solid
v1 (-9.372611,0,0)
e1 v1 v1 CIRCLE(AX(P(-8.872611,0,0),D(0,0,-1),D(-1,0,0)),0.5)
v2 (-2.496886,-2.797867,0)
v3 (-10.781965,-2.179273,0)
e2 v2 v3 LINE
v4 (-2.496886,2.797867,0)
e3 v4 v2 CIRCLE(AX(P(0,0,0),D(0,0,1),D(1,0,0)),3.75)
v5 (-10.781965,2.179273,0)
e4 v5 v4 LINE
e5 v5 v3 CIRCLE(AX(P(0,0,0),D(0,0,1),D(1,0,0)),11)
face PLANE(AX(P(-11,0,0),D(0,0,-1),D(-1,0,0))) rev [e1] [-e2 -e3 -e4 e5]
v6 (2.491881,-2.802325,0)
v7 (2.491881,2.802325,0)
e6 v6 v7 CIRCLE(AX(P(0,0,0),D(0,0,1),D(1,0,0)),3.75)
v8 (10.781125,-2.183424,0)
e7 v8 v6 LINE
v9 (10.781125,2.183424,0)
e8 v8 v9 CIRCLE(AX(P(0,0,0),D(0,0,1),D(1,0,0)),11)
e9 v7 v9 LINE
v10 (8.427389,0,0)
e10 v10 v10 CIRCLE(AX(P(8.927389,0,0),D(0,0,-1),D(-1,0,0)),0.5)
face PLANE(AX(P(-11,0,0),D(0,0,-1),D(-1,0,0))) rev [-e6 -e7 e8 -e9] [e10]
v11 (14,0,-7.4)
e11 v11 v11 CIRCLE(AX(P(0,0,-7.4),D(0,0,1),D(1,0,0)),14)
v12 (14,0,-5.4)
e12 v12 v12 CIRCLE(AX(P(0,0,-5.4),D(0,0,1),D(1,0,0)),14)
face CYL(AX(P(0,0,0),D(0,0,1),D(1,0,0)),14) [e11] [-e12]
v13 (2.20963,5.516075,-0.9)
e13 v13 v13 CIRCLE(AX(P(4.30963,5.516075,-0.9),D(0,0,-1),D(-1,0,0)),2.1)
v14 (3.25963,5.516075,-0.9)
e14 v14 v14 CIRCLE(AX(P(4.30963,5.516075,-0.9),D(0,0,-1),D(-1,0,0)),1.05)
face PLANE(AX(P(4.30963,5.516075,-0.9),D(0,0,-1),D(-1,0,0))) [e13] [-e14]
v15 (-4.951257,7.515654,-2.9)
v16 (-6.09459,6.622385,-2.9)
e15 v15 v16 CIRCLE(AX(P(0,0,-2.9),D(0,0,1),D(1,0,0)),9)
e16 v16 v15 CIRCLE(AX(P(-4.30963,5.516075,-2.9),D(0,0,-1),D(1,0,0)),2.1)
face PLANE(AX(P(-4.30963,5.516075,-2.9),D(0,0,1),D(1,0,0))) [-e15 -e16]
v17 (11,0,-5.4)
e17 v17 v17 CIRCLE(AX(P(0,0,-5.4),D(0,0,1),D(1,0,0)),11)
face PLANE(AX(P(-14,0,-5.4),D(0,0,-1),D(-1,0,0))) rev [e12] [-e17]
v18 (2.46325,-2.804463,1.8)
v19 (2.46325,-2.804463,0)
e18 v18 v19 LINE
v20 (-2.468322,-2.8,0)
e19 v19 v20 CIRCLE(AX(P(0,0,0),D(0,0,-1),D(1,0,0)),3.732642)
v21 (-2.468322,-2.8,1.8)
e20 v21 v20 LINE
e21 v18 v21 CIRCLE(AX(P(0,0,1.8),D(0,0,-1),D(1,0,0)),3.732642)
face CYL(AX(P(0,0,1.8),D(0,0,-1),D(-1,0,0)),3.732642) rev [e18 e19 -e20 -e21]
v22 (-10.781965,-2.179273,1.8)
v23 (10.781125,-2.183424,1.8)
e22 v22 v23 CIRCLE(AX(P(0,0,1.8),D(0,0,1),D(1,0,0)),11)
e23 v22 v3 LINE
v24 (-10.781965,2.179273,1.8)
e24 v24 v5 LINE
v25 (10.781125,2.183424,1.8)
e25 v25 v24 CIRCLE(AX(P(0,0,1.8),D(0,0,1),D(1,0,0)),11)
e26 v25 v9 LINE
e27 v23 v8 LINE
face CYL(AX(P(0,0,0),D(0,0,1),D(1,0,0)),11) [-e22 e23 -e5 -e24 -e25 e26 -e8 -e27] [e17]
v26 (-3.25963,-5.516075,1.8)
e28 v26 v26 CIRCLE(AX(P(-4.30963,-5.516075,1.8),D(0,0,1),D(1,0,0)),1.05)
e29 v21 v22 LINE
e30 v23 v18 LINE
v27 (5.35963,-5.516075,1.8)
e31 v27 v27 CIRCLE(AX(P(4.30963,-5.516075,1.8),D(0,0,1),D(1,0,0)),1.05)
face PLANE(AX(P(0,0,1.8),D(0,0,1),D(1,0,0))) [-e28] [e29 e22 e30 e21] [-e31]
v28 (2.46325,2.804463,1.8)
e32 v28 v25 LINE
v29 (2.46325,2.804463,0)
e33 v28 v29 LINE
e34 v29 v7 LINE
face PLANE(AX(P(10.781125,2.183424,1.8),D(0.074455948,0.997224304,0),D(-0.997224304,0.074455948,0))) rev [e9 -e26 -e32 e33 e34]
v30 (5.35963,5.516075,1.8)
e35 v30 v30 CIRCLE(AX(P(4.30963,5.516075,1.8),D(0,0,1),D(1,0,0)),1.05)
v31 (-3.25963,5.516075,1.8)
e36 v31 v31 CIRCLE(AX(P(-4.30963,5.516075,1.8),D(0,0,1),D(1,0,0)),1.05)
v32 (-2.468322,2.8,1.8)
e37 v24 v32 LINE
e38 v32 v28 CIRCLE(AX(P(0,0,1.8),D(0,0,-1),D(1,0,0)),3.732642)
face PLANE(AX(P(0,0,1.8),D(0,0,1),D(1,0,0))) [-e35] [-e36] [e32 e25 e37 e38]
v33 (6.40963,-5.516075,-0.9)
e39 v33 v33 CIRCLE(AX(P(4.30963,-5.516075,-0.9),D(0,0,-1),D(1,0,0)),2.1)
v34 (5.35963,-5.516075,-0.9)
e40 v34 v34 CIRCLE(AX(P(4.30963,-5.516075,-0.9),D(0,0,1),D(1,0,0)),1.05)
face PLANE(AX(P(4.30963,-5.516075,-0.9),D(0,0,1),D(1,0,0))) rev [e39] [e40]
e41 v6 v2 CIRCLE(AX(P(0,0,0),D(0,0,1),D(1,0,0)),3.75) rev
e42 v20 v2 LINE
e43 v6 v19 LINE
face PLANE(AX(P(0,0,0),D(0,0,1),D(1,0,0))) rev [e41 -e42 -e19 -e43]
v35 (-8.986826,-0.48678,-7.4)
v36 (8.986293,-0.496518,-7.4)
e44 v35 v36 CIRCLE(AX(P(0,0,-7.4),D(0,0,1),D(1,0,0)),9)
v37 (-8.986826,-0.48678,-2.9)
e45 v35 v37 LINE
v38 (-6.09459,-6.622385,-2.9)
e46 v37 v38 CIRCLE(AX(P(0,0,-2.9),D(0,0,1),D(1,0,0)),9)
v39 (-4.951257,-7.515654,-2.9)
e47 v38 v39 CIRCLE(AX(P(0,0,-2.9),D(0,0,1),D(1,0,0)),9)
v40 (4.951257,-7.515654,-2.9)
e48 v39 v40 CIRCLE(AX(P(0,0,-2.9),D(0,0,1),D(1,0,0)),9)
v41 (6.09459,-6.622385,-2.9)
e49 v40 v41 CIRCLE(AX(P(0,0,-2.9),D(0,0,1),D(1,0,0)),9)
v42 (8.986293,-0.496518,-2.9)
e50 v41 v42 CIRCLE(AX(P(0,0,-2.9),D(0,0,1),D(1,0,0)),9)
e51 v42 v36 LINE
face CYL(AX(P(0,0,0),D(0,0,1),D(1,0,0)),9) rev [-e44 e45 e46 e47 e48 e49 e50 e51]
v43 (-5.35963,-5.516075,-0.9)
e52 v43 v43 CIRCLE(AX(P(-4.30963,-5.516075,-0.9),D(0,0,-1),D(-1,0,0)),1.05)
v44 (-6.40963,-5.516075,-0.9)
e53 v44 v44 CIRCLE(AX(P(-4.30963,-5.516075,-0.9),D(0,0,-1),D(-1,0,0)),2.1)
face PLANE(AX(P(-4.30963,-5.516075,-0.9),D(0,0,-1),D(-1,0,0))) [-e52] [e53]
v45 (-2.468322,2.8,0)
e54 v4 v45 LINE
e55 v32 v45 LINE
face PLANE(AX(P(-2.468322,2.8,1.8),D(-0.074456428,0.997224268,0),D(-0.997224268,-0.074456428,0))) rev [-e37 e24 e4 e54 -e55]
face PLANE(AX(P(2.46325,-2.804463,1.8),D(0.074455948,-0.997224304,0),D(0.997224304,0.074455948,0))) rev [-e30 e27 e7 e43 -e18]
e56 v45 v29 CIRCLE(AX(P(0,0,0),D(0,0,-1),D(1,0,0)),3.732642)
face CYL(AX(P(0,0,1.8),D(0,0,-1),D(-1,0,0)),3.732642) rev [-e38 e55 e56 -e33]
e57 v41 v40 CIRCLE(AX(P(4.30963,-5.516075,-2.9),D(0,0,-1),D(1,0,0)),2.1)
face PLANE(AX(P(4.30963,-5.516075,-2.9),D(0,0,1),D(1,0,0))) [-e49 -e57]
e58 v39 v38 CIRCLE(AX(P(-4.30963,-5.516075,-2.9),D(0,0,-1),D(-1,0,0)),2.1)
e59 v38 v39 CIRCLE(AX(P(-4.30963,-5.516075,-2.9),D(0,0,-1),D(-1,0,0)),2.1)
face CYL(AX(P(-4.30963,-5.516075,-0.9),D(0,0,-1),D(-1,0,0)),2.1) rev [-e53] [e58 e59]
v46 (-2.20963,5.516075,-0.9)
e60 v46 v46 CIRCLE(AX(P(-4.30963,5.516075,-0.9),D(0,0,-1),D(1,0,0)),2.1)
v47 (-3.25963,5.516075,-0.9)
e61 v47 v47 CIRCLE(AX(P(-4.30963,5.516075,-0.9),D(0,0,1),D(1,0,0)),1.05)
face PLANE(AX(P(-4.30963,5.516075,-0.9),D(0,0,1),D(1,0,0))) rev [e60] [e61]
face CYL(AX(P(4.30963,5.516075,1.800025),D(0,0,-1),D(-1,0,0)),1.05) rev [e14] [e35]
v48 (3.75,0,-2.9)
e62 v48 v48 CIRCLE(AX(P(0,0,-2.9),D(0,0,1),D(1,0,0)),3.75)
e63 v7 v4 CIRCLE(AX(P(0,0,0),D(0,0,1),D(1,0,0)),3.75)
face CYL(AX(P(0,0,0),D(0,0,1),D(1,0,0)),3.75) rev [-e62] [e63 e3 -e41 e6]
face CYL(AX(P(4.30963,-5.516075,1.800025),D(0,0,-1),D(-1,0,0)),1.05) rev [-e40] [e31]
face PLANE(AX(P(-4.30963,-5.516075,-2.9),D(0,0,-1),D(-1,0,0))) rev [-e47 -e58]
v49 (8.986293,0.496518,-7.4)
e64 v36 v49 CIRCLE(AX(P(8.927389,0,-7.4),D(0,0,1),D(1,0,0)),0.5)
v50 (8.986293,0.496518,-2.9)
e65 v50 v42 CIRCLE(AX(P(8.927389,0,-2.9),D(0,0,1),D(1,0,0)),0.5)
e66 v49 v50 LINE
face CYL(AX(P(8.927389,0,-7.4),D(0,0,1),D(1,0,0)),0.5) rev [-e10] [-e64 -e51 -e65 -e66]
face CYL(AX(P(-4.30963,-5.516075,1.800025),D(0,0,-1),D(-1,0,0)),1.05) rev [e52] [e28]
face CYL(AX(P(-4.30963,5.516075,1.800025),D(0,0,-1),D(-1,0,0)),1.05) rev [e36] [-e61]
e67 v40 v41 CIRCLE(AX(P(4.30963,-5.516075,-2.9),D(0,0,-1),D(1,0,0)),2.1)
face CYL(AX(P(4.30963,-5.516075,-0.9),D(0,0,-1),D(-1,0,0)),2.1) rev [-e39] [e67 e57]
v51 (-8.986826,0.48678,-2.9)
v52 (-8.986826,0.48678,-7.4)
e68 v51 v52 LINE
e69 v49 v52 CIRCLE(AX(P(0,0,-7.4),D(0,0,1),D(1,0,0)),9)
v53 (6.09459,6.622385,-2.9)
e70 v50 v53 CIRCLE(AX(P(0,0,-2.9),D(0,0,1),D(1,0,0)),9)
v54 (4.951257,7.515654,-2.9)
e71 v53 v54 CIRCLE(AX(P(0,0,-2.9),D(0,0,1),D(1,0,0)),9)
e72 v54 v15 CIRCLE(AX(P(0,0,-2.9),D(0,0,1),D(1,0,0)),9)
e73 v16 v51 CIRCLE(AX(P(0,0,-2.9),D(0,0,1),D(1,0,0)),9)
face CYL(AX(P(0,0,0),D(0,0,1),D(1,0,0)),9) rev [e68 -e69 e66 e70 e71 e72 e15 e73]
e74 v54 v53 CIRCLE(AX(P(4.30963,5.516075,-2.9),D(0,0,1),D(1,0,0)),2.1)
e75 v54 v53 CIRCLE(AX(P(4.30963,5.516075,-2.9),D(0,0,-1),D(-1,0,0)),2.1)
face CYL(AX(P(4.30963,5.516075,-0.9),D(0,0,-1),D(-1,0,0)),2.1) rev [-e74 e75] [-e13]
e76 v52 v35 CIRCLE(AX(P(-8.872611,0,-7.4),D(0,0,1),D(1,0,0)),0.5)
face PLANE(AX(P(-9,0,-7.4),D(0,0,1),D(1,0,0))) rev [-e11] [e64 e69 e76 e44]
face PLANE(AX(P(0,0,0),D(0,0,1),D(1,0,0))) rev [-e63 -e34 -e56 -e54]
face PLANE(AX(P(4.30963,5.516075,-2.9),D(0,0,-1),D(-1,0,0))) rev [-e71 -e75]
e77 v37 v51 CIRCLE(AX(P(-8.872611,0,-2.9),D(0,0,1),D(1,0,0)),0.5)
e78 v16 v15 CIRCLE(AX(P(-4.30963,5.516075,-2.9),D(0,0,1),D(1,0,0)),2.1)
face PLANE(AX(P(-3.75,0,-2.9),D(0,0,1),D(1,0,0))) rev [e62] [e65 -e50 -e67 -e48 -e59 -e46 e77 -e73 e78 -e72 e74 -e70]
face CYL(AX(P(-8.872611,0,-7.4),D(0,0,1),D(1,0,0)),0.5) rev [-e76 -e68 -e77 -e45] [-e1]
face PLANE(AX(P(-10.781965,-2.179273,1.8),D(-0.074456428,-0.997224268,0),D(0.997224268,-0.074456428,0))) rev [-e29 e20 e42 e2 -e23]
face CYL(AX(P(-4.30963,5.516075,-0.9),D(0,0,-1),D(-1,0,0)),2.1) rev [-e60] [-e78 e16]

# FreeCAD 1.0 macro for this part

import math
import FreeCAD as App
import Part
import Sketcher
Q = App.Units.Quantity


def add_polygon(sketch, points):
    """Adds a closed chain of lines whose ends are joined by coincident constraints."""
    first, n = sketch.GeometryCount, len(points)
    for a, b in zip(points, points[1:] + points[:1]):
        sketch.addGeometry(Part.LineSegment(App.Vector(*a, 0), App.Vector(*b, 0)), False)
    for i in range(n):
        sketch.addConstraint(Sketcher.Constraint("Coincident", first + i, 2, first + (i + 1) % n, 1))

doc = App.newDocument("Part")
body = doc.addObject("PartDesign::Body", "Body")

# Sketch on XZ plane
sketch1 = doc.addObject("Sketcher::SketchObject", "Sketch")
body.addObject(sketch1)
sketch1.AttachmentSupport = (doc.XZ_Plane, [""])
sketch1.MapMode = "FlatFace"
add_polygon(sketch1, [(-11, 0), (-3.8, 0), (-3.8, -2.9), (-9, -2.9), (-9, -7.4), (-14, -7.4), (-14, -5.4), (-11, -5.4)])  # lines 0-7
sketch1.addConstraint([
    Sketcher.Constraint("Horizontal", 0),
    Sketcher.Constraint("Vertical", 1),
    Sketcher.Constraint("Horizontal", 2),
    Sketcher.Constraint("Vertical", 3),
    Sketcher.Constraint("Horizontal", 4),
    Sketcher.Constraint("Vertical", 5),
    Sketcher.Constraint("Horizontal", 6),
    Sketcher.Constraint("Vertical", 7),
    Sketcher.Constraint("PointOnObject", 0, 2, -1),
    Sketcher.Constraint("DistanceX", 4, 2, 4, 1, 5.0),
    Sketcher.Constraint("DistanceX", 6, 1, 6, 2, 3.0),
    Sketcher.Constraint("DistanceY", 5, 1, 5, 2, 2.0),
    Sketcher.Constraint("DistanceY", 1, 2, 1, 1, 2.9),
    Sketcher.Constraint("DistanceY", 3, 2, 3, 1, 4.5),
    Sketcher.Constraint("DistanceX", 2, 2, -1, 1, 9.0),
    Sketcher.Constraint("DistanceX", 0, 1, 0, 2, 7.25),
])
revolution = doc.addObject("PartDesign::Revolution", "Revolution")
body.addObject(revolution)
revolution.Profile = sketch1
revolution.ReferenceAxis = (sketch1, ["V_Axis"])
revolution.Angle = 360

# Sketch on XY plane
sketch2 = doc.addObject("Sketcher::SketchObject", "Sketch001")
body.addObject(sketch2)
sketch2.AttachmentSupport = (doc.XY_Plane, [""])
sketch2.MapMode = "FlatFace"
sketch2.AttachmentOffset = App.Placement(App.Vector(0, 0, 1.8), App.Rotation())
sketch2.addGeometry([
    Part.Circle(App.Vector(-8.9, 0, 0), App.Vector(0, 0, 1), 0.5),  # 0
    Part.Circle(App.Vector(8.9, 0, 0), App.Vector(0, 0, 1), 0.5),  # 1
    Part.LineSegment(App.Vector(-10.8, 2.2, 0), App.Vector(-2.5, 2.8, 0)),  # 2
    Part.ArcOfCircle(Part.Circle(App.Vector(0, 0, 0), App.Vector(0, 0, 1), 3.7), math.radians(49), math.radians(131)),  # 3
    Part.LineSegment(App.Vector(2.5, 2.8, 0), App.Vector(10.8, 2.2, 0)),  # 4
    Part.ArcOfCircle(Part.Circle(App.Vector(0, 0, 0), App.Vector(0, 0, 1), 11), math.radians(11), math.radians(169)),  # 5
    Part.LineSegment(App.Vector(-2.5, -2.8, 0), App.Vector(-10.8, -2.2, 0)),  # 6
    Part.ArcOfCircle(Part.Circle(App.Vector(0, 0, 0), App.Vector(0, 0, 1), 11), math.radians(-169), math.radians(-11)),  # 7
    Part.LineSegment(App.Vector(10.8, -2.2, 0), App.Vector(2.5, -2.8, 0)),  # 8
    Part.ArcOfCircle(Part.Circle(App.Vector(0, 0, 0), App.Vector(0, 0, 1), 3.7), math.radians(-131), math.radians(-49)),  # 9
], False)
sketch2.addConstraint([
    Sketcher.Constraint("Coincident", 2, 2, 3, 2),
    Sketcher.Constraint("Coincident", 3, 1, 4, 1),
    Sketcher.Constraint("Coincident", 4, 2, 5, 1),
    Sketcher.Constraint("Coincident", 5, 2, 2, 1),
    Sketcher.Constraint("Coincident", 6, 2, 7, 1),
    Sketcher.Constraint("Coincident", 7, 2, 8, 1),
    Sketcher.Constraint("Coincident", 8, 2, 9, 2),
    Sketcher.Constraint("Coincident", 9, 1, 6, 1),
    Sketcher.Constraint("Coincident", 3, 3, -1, 1),
    Sketcher.Constraint("Coincident", 5, 3, -1, 1),
    Sketcher.Constraint("Coincident", 7, 3, -1, 1),
    Sketcher.Constraint("Coincident", 9, 3, -1, 1),
    Sketcher.Constraint("Equal", 0, 1),
    Sketcher.Constraint("Equal", 5, 7),
    Sketcher.Constraint("Equal", 3, 9),
    Sketcher.Constraint("PointOnObject", 0, 3, -1),
    Sketcher.Constraint("PointOnObject", 1, 3, -1),
    Sketcher.Constraint("Parallel", 4, 6),
    Sketcher.Constraint("Parallel", 2, 8),
    Sketcher.Constraint("Vertical", 5, 2, 6, 2),
    Sketcher.Constraint("Vertical", 4, 2, 7, 2),
    Sketcher.Constraint("Vertical", 3, 1, 8, 2),
    Sketcher.Constraint("Diameter", 0, 1.0),
    Sketcher.Constraint("Radius", 5, 11.0),
    Sketcher.Constraint("DistanceY", -1, 1, 2, 2, 2.8),
    Sketcher.Constraint("Angle", 2, Q("4.269991 deg")),
    Sketcher.Constraint("DistanceX", 0, 3, 1, 3, 17.8),
    Sketcher.Constraint("Radius", 3, 3.732642),
    Sketcher.Constraint("DistanceX", 0, 3, -1, 1, 8.872611),
    Sketcher.Constraint("DistanceX", -1, 1, 3, 1, 2.46325),
])
pad1 = doc.addObject("PartDesign::Pad", "Pad")
body.addObject(pad1)
pad1.Profile = sketch2
pad1.Length = 1.8
pad1.Reversed = True

# Sketch on XY plane
sketch3 = doc.addObject("Sketcher::SketchObject", "Sketch002")
body.addObject(sketch3)
sketch3.AttachmentSupport = (doc.XY_Plane, [""])
sketch3.MapMode = "FlatFace"
sketch3.AttachmentOffset = App.Placement(App.Vector(0, 0, 1.8), App.Rotation())
sketch3.addGeometry([
    Part.Circle(App.Vector(-8.9, 0, 0), App.Vector(0, 0, 1), 0.5),
    Part.Circle(App.Vector(8.9, 0, 0), App.Vector(0, 0, 1), 0.5),
], False)
sketch3.addConstraint([
    Sketcher.Constraint("Equal", 0, 1),
    Sketcher.Constraint("PointOnObject", 0, 3, -1),
    Sketcher.Constraint("PointOnObject", 1, 3, -1),
    Sketcher.Constraint("Diameter", 0, 1.0),
    Sketcher.Constraint("DistanceX", 0, 3, 1, 3, 17.8),
    Sketcher.Constraint("DistanceX", 0, 3, -1, 1, 8.872611),
])
pocket1 = doc.addObject("PartDesign::Pocket", "Pocket")
body.addObject(pocket1)
pocket1.Profile = sketch3
pocket1.Type = "ThroughAll"

# Sketch on XY plane
sketch4 = doc.addObject("Sketcher::SketchObject", "Sketch003")
body.addObject(sketch4)
sketch4.AttachmentSupport = (doc.XY_Plane, [""])
sketch4.MapMode = "FlatFace"
sketch4.AttachmentOffset = App.Placement(App.Vector(0, 0, -2.9), App.Rotation())
sketch4.addGeometry([
    Part.Circle(App.Vector(4.3, 5.5, 0), App.Vector(0, 0, 1), 2.1),
    Part.Circle(App.Vector(-4.3, 5.5, 0), App.Vector(0, 0, 1), 2.1),
    Part.Circle(App.Vector(4.3, -5.5, 0), App.Vector(0, 0, 1), 2.1),
    Part.Circle(App.Vector(-4.3, -5.5, 0), App.Vector(0, 0, 1), 2.1),
], False)
sketch4.addConstraint([
    Sketcher.Constraint("Equal", 0, 1),
    Sketcher.Constraint("Equal", 1, 2),
    Sketcher.Constraint("Equal", 2, 3),
    Sketcher.Constraint("Symmetric", 1, 3, 2, 3, -1, 1),
    Sketcher.Constraint("Symmetric", 0, 3, 3, 3, -1, 1),
    Sketcher.Constraint("Symmetric", 0, 3, 1, 3, -2),
    Sketcher.Constraint("Diameter", 0, 4.2),
    Sketcher.Constraint("DistanceX", -1, 1, 0, 3, 4.30963),
    Sketcher.Constraint("DistanceY", 2, 3, 0, 3, 11.032151),
])
pocket2 = doc.addObject("PartDesign::Pocket", "Pocket001")
body.addObject(pocket2)
pocket2.Profile = sketch4
pocket2.Length = 2
pocket2.Reversed = True

# Sketch on XY plane
sketch5 = doc.addObject("Sketcher::SketchObject", "Sketch004")
body.addObject(sketch5)
sketch5.AttachmentSupport = (doc.XY_Plane, [""])
sketch5.MapMode = "FlatFace"
sketch5.AttachmentOffset = App.Placement(App.Vector(0, 0, -2.9), App.Rotation())
sketch5.addGeometry([
    Part.Circle(App.Vector(-4.3, -5.5, 0), App.Vector(0, 0, 1), 1.1),
    Part.Circle(App.Vector(4.3, -5.5, 0), App.Vector(0, 0, 1), 1.1),
    Part.Circle(App.Vector(-4.3, 5.5, 0), App.Vector(0, 0, 1), 1.1),
    Part.Circle(App.Vector(4.3, 5.5, 0), App.Vector(0, 0, 1), 1.1),
], False)
sketch5.addConstraint([
    Sketcher.Constraint("Equal", 0, 1),
    Sketcher.Constraint("Equal", 1, 2),
    Sketcher.Constraint("Equal", 2, 3),
    Sketcher.Constraint("Symmetric", 1, 3, 2, 3, -1, 1),
    Sketcher.Constraint("Symmetric", 0, 3, 3, 3, -1, 1),
    Sketcher.Constraint("Symmetric", 0, 3, 1, 3, -2),
    Sketcher.Constraint("Diameter", 0, 2.1),
    Sketcher.Constraint("DistanceX", 0, 3, -1, 1, 4.30963),
    Sketcher.Constraint("DistanceY", 0, 3, 2, 3, 11.032151),
])
pocket3 = doc.addObject("PartDesign::Pocket", "Pocket002")
body.addObject(pocket3)
pocket3.Profile = sketch5
pocket3.Type = "ThroughAll"
pocket3.Reversed = True

doc.recompute()
